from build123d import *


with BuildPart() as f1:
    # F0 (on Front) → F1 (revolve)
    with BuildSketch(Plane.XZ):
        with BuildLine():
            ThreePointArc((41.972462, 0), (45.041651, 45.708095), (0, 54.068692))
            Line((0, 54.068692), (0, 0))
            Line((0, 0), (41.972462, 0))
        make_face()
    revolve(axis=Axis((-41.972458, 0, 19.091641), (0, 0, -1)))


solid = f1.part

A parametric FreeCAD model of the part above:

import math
import FreeCAD as App
import Part
import Sketcher

V = App.Vector
Q = App.Units.Quantity

doc = App.newDocument("Part")
body = doc.addObject("PartDesign::Body", "Body")

# Sketch on XZ plane
sketch1 = doc.addObject("Sketcher::SketchObject", "Sketch")
body.addObject(sketch1)
sketch1.AttachmentSupport = (doc.XZ_Plane, [""])
sketch1.MapMode = "FlatFace"
sketch1.addGeometry(Part.ArcOfCircle(Part.Circle(V(18, 25, 0), V(0, 0, 1), 34), math.radians(-46), math.radians(121)), False)
sketch1.addGeometry(Part.LineSegment(V(0, 54, 0), V(0, 0, 0)), False)
sketch1.addGeometry(Part.LineSegment(V(0, 0, 0), V(42, 0, 0)), False)
sketch1.addGeometry(Part.LineSegment(V(-42, 54, 0), V(-42, 0, 0)), True)  # axis
sketch1.addConstraint(Sketcher.Constraint("Coincident", 0, 2, 1, 1))
sketch1.addConstraint(Sketcher.Constraint("Coincident", 1, 2, 2, 1))
sketch1.addConstraint(Sketcher.Constraint("Coincident", 2, 2, 0, 1))
sketch1.addConstraint(Sketcher.Constraint("Vertical", 1))
sketch1.addConstraint(Sketcher.Constraint("Horizontal", 2))
sketch1.addConstraint(Sketcher.Constraint("Vertical", 3))
sketch1.addConstraint(Sketcher.Constraint("Coincident", 1, 2, -1, 1))
sketch1.addConstraint(Sketcher.Constraint("Symmetric", 2, 2, 3, 2, -1, 1))
sketch1.addConstraint(Sketcher.Constraint("Horizontal", 0, 2, 3, 1))
sketch1.addConstraint(Sketcher.Constraint("Radius", 0, Q("34.457437 mm")))
sketch1.addConstraint(Sketcher.Constraint("DistanceX", 2, 1, 2, 2, Q("41.972462 mm")))
sketch1.addConstraint(Sketcher.Constraint("DistanceY", 1, 2, 1, 1, Q("54.068692 mm")))
revolution = doc.addObject("PartDesign::Revolution", "Revolution")
body.addObject(revolution)
revolution.Profile = sketch1
revolution.ReferenceAxis = (sketch1, ["Axis0"])
revolution.Angle = 360

doc.recompute()
